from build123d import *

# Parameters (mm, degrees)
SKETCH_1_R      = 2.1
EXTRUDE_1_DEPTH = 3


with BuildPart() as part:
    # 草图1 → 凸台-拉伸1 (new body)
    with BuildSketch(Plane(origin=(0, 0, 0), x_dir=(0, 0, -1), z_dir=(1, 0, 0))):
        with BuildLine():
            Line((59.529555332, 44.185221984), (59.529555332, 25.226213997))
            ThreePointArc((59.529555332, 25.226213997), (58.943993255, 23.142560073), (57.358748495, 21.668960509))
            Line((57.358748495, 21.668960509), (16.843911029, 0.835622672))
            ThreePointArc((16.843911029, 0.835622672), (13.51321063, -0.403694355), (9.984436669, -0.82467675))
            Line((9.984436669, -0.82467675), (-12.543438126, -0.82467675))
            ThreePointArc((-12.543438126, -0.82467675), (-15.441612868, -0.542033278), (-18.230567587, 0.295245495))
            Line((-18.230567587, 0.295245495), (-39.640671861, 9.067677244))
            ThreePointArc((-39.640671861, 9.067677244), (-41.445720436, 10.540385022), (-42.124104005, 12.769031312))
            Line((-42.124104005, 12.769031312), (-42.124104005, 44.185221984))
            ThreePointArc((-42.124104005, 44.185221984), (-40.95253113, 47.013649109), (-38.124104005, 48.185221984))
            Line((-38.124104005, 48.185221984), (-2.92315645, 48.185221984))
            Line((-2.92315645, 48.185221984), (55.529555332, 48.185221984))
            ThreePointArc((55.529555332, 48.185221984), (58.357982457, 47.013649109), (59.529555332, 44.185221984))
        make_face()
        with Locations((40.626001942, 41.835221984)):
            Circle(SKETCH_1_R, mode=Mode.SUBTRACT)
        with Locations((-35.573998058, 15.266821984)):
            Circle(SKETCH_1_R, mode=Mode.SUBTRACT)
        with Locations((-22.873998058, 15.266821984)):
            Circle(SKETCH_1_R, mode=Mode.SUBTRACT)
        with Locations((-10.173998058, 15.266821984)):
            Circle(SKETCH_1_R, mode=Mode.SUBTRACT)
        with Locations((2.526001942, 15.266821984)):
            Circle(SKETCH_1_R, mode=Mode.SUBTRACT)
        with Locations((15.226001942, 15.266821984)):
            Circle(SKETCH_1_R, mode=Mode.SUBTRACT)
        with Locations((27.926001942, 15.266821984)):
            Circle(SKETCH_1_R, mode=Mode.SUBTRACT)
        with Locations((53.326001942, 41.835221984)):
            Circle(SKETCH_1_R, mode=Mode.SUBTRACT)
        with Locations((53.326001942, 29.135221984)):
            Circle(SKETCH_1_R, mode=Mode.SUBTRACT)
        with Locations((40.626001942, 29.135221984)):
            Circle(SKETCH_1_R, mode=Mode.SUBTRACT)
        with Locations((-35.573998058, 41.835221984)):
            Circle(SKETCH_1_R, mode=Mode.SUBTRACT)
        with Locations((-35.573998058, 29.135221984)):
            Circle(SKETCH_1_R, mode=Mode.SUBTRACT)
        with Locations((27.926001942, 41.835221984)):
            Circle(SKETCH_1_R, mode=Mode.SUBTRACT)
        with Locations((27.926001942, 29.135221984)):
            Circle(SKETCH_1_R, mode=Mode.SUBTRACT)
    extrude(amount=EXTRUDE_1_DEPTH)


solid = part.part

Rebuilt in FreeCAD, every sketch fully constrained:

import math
import FreeCAD as App
import Part
import Sketcher
from FreeCAD import Vector
Q = App.Units.Quantity

doc = App.newDocument("Part")
body = doc.addObject("PartDesign::Body", "Body")

sketch1 = doc.addObject("Sketcher::SketchObject", "Sketch")
body.addObject(sketch1)
sketch1.AttachmentSupport = (doc.YZ_Plane, [""])
sketch1.MapMode = "FlatFace"
sketch1.addGeometry(Part.LineSegment(Vector(25.2, -59.5, 0), Vector(44.2, -59.5, 0)), False)
sketch1.addGeometry(Part.ArcOfCircle(Part.Circle(Vector(44.2, -55.5, 0), Vector(0, 0, 1), 4), math.radians(-90), math.radians(0)), False)
sketch1.addGeometry(Part.LineSegment(Vector(48.2, -55.5, 0), Vector(48.2, 38.1, 0)), False)
sketch1.addGeometry(Part.ArcOfCircle(Part.Circle(Vector(44.2, 38.1, 0), Vector(0, 0, 1), 4), math.radians(0), math.radians(90)), False)
sketch1.addGeometry(Part.LineSegment(Vector(44.2, 42.1, 0), Vector(12.8, 42.1, 0)), False)
sketch1.addGeometry(Part.ArcOfCircle(Part.Circle(Vector(12.8, 38.1, 0), Vector(0, 0, 1), 4), math.radians(90), math.radians(158)), False)
sketch1.addGeometry(Part.LineSegment(Vector(9.1, 39.6, 0), Vector(0.3, 18.2, 0)), False)
sketch1.addGeometry(Part.ArcOfCircle(Part.Circle(Vector(14.2, 12.5, 0), Vector(0, 0, 1), 15), math.radians(158), math.radians(180)), False)
sketch1.addGeometry(Part.LineSegment(Vector(-0.8, 12.5, 0), Vector(-0.8, -10, 0)), False)
sketch1.addGeometry(Part.ArcOfCircle(Part.Circle(Vector(14.2, -10, 0), Vector(0, 0, 1), 15), math.radians(-180), math.radians(-153)), False)
sketch1.addGeometry(Part.LineSegment(Vector(0.8, -16.8, 0), Vector(21.7, -57.4, 0)), False)
sketch1.addGeometry(Part.ArcOfCircle(Part.Circle(Vector(25.2, -55.5, 0), Vector(0, 0, 1), 4), math.radians(-153), math.radians(-90)), False)
sketch1.addGeometry(Part.Circle(Vector(15.3, -27.9, 0), Vector(0, 0, 1), 2.1), False)
sketch1.addGeometry(Part.Circle(Vector(15.3, -15.2, 0), Vector(0, 0, 1), 2.1), False)
sketch1.addGeometry(Part.Circle(Vector(15.3, -2.5, 0), Vector(0, 0, 1), 2.1), False)
sketch1.addGeometry(Part.Circle(Vector(15.3, 10.2, 0), Vector(0, 0, 1), 2.1), False)
sketch1.addGeometry(Part.Circle(Vector(15.3, 22.9, 0), Vector(0, 0, 1), 2.1), False)
sketch1.addGeometry(Part.Circle(Vector(15.3, 35.6, 0), Vector(0, 0, 1), 2.1), False)
sketch1.addGeometry(Part.Circle(Vector(29.1, -53.3, 0), Vector(0, 0, 1), 2.1), False)
sketch1.addGeometry(Part.Circle(Vector(29.1, -40.6, 0), Vector(0, 0, 1), 2.1), False)
sketch1.addGeometry(Part.Circle(Vector(29.1, -27.9, 0), Vector(0, 0, 1), 2.1), False)
sketch1.addGeometry(Part.Circle(Vector(41.8, -53.3, 0), Vector(0, 0, 1), 2.1), False)
sketch1.addGeometry(Part.Circle(Vector(41.8, -40.6, 0), Vector(0, 0, 1), 2.1), False)
sketch1.addGeometry(Part.Circle(Vector(41.8, -27.9, 0), Vector(0, 0, 1), 2.1), False)
sketch1.addGeometry(Part.Circle(Vector(29.1, 35.6, 0), Vector(0, 0, 1), 2.1), False)
sketch1.addGeometry(Part.Circle(Vector(41.8, 35.6, 0), Vector(0, 0, 1), 2.1), False)
sketch1.addConstraint(Sketcher.Constraint("Tangent", 0, 2, 1, 1))
sketch1.addConstraint(Sketcher.Constraint("Tangent", 1, 2, 2, 1))
sketch1.addConstraint(Sketcher.Constraint("Tangent", 2, 2, 3, 1))
sketch1.addConstraint(Sketcher.Constraint("Tangent", 3, 2, 4, 1))
sketch1.addConstraint(Sketcher.Constraint("Tangent", 4, 2, 5, 1))
sketch1.addConstraint(Sketcher.Constraint("Tangent", 5, 2, 6, 1))
sketch1.addConstraint(Sketcher.Constraint("Tangent", 6, 2, 7, 1))
sketch1.addConstraint(Sketcher.Constraint("Tangent", 7, 2, 8, 1))
sketch1.addConstraint(Sketcher.Constraint("Tangent", 8, 2, 9, 1))
sketch1.addConstraint(Sketcher.Constraint("Tangent", 9, 2, 10, 1))
sketch1.addConstraint(Sketcher.Constraint("Tangent", 10, 2, 11, 1))
sketch1.addConstraint(Sketcher.Constraint("Tangent", 11, 2, 0, 1))
sketch1.addConstraint(Sketcher.Constraint("Horizontal", 0))
sketch1.addConstraint(Sketcher.Constraint("Vertical", 2))
sketch1.addConstraint(Sketcher.Constraint("Horizontal", 4))
sketch1.addConstraint(Sketcher.Constraint("Vertical", 8))
sketch1.addConstraint(Sketcher.Constraint("Equal", 1, 3))
sketch1.addConstraint(Sketcher.Constraint("Equal", 3, 5))
sketch1.addConstraint(Sketcher.Constraint("Equal", 7, 9))
sketch1.addConstraint(Sketcher.Constraint("Equal", 5, 11))
sketch1.addConstraint(Sketcher.Constraint("Equal", 12, 13))
sketch1.addConstraint(Sketcher.Constraint("Equal", 13, 14))
sketch1.addConstraint(Sketcher.Constraint("Equal", 14, 15))
sketch1.addConstraint(Sketcher.Constraint("Equal", 15, 16))
sketch1.addConstraint(Sketcher.Constraint("Equal", 16, 17))
sketch1.addConstraint(Sketcher.Constraint("Equal", 17, 18))
sketch1.addConstraint(Sketcher.Constraint("Equal", 18, 19))
sketch1.addConstraint(Sketcher.Constraint("Equal", 19, 20))
sketch1.addConstraint(Sketcher.Constraint("Equal", 20, 21))
sketch1.addConstraint(Sketcher.Constraint("Equal", 21, 22))
sketch1.addConstraint(Sketcher.Constraint("Equal", 22, 23))
sketch1.addConstraint(Sketcher.Constraint("Equal", 23, 24))
sketch1.addConstraint(Sketcher.Constraint("Equal", 24, 25))
sketch1.addConstraint(Sketcher.Constraint("Horizontal", 12, 3, 20, 3))
sketch1.addConstraint(Sketcher.Constraint("Horizontal", 18, 3, 21, 3))
sketch1.addConstraint(Sketcher.Constraint("Horizontal", 19, 3, 22, 3))
sketch1.addConstraint(Sketcher.Constraint("Horizontal", 20, 3, 23, 3))
sketch1.addConstraint(Sketcher.Constraint("Horizontal", 17, 3, 24, 3))
sketch1.addConstraint(Sketcher.Constraint("Horizontal", 24, 3, 25, 3))
sketch1.addConstraint(Sketcher.Constraint("Vertical", 12, 3, 13, 3))
sketch1.addConstraint(Sketcher.Constraint("Vertical", 13, 3, 14, 3))
sketch1.addConstraint(Sketcher.Constraint("Vertical", 14, 3, 15, 3))
sketch1.addConstraint(Sketcher.Constraint("Vertical", 15, 3, 16, 3))
sketch1.addConstraint(Sketcher.Constraint("Vertical", 16, 3, 17, 3))
sketch1.addConstraint(Sketcher.Constraint("Vertical", 18, 3, 19, 3))
sketch1.addConstraint(Sketcher.Constraint("Vertical", 19, 3, 20, 3))
sketch1.addConstraint(Sketcher.Constraint("Vertical", 21, 3, 22, 3))
sketch1.addConstraint(Sketcher.Constraint("Vertical", 22, 3, 23, 3))
sketch1.addConstraint(Sketcher.Constraint("Vertical", 20, 3, 24, 3))
sketch1.addConstraint(Sketcher.Constraint("Vertical", 23, 3, 25, 3))
sketch1.addConstraint(Sketcher.Constraint("Radius", 1, Q("4 mm")))
sketch1.addConstraint(Sketcher.Constraint("Radius", 7, Q("15 mm")))
sketch1.addConstraint(Sketcher.Constraint("Diameter", 12, Q("4.2 mm")))
sketch1.addConstraint(Sketcher.Constraint("DistanceY", 12, 3, 13, 3, Q("12.7 mm")))
sketch1.addConstraint(Sketcher.Constraint("DistanceY", 13, 3, 14, 3, Q("12.7 mm")))
sketch1.addConstraint(Sketcher.Constraint("DistanceY", 14, 3, 15, 3, Q("12.7 mm")))
sketch1.addConstraint(Sketcher.Constraint("DistanceY", 15, 3, 16, 3, Q("12.7 mm")))
sketch1.addConstraint(Sketcher.Constraint("DistanceY", 16, 3, 17, 3, Q("12.7 mm")))
sketch1.addConstraint(Sketcher.Constraint("DistanceY", 18, 3, 12, 3, Q("25.4 mm")))
sketch1.addConstraint(Sketcher.Constraint("DistanceY", 18, 3, 19, 3, Q("12.7 mm")))
sketch1.addConstraint(Sketcher.Constraint("DistanceX", 18, 3, 21, 3, Q("12.7 mm")))
sketch1.addConstraint(Sketcher.Constraint("DistanceX", 18, 3, 1, 3, Q("15.05 mm")))
sketch1.addConstraint(Sketcher.Constraint("DistanceY", 12, 3, -1, 1, Q("27.926002 mm")))
sketch1.addConstraint(Sketcher.Constraint("DistanceX", 4, 2, 4, 1, Q("31.416191 mm")))
sketch1.addConstraint(Sketcher.Constraint("DistanceY", 2, 1, 2, 2, Q("93.653659 mm")))
sketch1.addConstraint(Sketcher.Constraint("DistanceX", 7, 3, 3, 3, Q("30.009899 mm")))
sketch1.addConstraint(Sketcher.Constraint("DistanceX", 9, 3, 12, 3, Q("1.091499 mm")))
sketch1.addConstraint(Sketcher.Constraint("DistanceX", 8, 2, 9, 2, Q("1.660299 mm")))
sketch1.addConstraint(Sketcher.Constraint("Distance", 6, Q("23.137591 mm")))
sketch1.addConstraint(Sketcher.Constraint("DistanceX", 0, 1, 0, 2, Q("18.959008 mm")))
sketch1.addConstraint(Sketcher.Constraint("DistanceX", -1, 1, 1, 3, Q("44.185222 mm")))
sketch1.addConstraint(Sketcher.Constraint("DistanceY", -1, 1, 7, 3, Q("12.543438 mm")))
pad1 = doc.addObject("PartDesign::Pad", "Pad")
body.addObject(pad1)
pad1.Profile = sketch1
pad1.Length = 3

doc.recompute()
